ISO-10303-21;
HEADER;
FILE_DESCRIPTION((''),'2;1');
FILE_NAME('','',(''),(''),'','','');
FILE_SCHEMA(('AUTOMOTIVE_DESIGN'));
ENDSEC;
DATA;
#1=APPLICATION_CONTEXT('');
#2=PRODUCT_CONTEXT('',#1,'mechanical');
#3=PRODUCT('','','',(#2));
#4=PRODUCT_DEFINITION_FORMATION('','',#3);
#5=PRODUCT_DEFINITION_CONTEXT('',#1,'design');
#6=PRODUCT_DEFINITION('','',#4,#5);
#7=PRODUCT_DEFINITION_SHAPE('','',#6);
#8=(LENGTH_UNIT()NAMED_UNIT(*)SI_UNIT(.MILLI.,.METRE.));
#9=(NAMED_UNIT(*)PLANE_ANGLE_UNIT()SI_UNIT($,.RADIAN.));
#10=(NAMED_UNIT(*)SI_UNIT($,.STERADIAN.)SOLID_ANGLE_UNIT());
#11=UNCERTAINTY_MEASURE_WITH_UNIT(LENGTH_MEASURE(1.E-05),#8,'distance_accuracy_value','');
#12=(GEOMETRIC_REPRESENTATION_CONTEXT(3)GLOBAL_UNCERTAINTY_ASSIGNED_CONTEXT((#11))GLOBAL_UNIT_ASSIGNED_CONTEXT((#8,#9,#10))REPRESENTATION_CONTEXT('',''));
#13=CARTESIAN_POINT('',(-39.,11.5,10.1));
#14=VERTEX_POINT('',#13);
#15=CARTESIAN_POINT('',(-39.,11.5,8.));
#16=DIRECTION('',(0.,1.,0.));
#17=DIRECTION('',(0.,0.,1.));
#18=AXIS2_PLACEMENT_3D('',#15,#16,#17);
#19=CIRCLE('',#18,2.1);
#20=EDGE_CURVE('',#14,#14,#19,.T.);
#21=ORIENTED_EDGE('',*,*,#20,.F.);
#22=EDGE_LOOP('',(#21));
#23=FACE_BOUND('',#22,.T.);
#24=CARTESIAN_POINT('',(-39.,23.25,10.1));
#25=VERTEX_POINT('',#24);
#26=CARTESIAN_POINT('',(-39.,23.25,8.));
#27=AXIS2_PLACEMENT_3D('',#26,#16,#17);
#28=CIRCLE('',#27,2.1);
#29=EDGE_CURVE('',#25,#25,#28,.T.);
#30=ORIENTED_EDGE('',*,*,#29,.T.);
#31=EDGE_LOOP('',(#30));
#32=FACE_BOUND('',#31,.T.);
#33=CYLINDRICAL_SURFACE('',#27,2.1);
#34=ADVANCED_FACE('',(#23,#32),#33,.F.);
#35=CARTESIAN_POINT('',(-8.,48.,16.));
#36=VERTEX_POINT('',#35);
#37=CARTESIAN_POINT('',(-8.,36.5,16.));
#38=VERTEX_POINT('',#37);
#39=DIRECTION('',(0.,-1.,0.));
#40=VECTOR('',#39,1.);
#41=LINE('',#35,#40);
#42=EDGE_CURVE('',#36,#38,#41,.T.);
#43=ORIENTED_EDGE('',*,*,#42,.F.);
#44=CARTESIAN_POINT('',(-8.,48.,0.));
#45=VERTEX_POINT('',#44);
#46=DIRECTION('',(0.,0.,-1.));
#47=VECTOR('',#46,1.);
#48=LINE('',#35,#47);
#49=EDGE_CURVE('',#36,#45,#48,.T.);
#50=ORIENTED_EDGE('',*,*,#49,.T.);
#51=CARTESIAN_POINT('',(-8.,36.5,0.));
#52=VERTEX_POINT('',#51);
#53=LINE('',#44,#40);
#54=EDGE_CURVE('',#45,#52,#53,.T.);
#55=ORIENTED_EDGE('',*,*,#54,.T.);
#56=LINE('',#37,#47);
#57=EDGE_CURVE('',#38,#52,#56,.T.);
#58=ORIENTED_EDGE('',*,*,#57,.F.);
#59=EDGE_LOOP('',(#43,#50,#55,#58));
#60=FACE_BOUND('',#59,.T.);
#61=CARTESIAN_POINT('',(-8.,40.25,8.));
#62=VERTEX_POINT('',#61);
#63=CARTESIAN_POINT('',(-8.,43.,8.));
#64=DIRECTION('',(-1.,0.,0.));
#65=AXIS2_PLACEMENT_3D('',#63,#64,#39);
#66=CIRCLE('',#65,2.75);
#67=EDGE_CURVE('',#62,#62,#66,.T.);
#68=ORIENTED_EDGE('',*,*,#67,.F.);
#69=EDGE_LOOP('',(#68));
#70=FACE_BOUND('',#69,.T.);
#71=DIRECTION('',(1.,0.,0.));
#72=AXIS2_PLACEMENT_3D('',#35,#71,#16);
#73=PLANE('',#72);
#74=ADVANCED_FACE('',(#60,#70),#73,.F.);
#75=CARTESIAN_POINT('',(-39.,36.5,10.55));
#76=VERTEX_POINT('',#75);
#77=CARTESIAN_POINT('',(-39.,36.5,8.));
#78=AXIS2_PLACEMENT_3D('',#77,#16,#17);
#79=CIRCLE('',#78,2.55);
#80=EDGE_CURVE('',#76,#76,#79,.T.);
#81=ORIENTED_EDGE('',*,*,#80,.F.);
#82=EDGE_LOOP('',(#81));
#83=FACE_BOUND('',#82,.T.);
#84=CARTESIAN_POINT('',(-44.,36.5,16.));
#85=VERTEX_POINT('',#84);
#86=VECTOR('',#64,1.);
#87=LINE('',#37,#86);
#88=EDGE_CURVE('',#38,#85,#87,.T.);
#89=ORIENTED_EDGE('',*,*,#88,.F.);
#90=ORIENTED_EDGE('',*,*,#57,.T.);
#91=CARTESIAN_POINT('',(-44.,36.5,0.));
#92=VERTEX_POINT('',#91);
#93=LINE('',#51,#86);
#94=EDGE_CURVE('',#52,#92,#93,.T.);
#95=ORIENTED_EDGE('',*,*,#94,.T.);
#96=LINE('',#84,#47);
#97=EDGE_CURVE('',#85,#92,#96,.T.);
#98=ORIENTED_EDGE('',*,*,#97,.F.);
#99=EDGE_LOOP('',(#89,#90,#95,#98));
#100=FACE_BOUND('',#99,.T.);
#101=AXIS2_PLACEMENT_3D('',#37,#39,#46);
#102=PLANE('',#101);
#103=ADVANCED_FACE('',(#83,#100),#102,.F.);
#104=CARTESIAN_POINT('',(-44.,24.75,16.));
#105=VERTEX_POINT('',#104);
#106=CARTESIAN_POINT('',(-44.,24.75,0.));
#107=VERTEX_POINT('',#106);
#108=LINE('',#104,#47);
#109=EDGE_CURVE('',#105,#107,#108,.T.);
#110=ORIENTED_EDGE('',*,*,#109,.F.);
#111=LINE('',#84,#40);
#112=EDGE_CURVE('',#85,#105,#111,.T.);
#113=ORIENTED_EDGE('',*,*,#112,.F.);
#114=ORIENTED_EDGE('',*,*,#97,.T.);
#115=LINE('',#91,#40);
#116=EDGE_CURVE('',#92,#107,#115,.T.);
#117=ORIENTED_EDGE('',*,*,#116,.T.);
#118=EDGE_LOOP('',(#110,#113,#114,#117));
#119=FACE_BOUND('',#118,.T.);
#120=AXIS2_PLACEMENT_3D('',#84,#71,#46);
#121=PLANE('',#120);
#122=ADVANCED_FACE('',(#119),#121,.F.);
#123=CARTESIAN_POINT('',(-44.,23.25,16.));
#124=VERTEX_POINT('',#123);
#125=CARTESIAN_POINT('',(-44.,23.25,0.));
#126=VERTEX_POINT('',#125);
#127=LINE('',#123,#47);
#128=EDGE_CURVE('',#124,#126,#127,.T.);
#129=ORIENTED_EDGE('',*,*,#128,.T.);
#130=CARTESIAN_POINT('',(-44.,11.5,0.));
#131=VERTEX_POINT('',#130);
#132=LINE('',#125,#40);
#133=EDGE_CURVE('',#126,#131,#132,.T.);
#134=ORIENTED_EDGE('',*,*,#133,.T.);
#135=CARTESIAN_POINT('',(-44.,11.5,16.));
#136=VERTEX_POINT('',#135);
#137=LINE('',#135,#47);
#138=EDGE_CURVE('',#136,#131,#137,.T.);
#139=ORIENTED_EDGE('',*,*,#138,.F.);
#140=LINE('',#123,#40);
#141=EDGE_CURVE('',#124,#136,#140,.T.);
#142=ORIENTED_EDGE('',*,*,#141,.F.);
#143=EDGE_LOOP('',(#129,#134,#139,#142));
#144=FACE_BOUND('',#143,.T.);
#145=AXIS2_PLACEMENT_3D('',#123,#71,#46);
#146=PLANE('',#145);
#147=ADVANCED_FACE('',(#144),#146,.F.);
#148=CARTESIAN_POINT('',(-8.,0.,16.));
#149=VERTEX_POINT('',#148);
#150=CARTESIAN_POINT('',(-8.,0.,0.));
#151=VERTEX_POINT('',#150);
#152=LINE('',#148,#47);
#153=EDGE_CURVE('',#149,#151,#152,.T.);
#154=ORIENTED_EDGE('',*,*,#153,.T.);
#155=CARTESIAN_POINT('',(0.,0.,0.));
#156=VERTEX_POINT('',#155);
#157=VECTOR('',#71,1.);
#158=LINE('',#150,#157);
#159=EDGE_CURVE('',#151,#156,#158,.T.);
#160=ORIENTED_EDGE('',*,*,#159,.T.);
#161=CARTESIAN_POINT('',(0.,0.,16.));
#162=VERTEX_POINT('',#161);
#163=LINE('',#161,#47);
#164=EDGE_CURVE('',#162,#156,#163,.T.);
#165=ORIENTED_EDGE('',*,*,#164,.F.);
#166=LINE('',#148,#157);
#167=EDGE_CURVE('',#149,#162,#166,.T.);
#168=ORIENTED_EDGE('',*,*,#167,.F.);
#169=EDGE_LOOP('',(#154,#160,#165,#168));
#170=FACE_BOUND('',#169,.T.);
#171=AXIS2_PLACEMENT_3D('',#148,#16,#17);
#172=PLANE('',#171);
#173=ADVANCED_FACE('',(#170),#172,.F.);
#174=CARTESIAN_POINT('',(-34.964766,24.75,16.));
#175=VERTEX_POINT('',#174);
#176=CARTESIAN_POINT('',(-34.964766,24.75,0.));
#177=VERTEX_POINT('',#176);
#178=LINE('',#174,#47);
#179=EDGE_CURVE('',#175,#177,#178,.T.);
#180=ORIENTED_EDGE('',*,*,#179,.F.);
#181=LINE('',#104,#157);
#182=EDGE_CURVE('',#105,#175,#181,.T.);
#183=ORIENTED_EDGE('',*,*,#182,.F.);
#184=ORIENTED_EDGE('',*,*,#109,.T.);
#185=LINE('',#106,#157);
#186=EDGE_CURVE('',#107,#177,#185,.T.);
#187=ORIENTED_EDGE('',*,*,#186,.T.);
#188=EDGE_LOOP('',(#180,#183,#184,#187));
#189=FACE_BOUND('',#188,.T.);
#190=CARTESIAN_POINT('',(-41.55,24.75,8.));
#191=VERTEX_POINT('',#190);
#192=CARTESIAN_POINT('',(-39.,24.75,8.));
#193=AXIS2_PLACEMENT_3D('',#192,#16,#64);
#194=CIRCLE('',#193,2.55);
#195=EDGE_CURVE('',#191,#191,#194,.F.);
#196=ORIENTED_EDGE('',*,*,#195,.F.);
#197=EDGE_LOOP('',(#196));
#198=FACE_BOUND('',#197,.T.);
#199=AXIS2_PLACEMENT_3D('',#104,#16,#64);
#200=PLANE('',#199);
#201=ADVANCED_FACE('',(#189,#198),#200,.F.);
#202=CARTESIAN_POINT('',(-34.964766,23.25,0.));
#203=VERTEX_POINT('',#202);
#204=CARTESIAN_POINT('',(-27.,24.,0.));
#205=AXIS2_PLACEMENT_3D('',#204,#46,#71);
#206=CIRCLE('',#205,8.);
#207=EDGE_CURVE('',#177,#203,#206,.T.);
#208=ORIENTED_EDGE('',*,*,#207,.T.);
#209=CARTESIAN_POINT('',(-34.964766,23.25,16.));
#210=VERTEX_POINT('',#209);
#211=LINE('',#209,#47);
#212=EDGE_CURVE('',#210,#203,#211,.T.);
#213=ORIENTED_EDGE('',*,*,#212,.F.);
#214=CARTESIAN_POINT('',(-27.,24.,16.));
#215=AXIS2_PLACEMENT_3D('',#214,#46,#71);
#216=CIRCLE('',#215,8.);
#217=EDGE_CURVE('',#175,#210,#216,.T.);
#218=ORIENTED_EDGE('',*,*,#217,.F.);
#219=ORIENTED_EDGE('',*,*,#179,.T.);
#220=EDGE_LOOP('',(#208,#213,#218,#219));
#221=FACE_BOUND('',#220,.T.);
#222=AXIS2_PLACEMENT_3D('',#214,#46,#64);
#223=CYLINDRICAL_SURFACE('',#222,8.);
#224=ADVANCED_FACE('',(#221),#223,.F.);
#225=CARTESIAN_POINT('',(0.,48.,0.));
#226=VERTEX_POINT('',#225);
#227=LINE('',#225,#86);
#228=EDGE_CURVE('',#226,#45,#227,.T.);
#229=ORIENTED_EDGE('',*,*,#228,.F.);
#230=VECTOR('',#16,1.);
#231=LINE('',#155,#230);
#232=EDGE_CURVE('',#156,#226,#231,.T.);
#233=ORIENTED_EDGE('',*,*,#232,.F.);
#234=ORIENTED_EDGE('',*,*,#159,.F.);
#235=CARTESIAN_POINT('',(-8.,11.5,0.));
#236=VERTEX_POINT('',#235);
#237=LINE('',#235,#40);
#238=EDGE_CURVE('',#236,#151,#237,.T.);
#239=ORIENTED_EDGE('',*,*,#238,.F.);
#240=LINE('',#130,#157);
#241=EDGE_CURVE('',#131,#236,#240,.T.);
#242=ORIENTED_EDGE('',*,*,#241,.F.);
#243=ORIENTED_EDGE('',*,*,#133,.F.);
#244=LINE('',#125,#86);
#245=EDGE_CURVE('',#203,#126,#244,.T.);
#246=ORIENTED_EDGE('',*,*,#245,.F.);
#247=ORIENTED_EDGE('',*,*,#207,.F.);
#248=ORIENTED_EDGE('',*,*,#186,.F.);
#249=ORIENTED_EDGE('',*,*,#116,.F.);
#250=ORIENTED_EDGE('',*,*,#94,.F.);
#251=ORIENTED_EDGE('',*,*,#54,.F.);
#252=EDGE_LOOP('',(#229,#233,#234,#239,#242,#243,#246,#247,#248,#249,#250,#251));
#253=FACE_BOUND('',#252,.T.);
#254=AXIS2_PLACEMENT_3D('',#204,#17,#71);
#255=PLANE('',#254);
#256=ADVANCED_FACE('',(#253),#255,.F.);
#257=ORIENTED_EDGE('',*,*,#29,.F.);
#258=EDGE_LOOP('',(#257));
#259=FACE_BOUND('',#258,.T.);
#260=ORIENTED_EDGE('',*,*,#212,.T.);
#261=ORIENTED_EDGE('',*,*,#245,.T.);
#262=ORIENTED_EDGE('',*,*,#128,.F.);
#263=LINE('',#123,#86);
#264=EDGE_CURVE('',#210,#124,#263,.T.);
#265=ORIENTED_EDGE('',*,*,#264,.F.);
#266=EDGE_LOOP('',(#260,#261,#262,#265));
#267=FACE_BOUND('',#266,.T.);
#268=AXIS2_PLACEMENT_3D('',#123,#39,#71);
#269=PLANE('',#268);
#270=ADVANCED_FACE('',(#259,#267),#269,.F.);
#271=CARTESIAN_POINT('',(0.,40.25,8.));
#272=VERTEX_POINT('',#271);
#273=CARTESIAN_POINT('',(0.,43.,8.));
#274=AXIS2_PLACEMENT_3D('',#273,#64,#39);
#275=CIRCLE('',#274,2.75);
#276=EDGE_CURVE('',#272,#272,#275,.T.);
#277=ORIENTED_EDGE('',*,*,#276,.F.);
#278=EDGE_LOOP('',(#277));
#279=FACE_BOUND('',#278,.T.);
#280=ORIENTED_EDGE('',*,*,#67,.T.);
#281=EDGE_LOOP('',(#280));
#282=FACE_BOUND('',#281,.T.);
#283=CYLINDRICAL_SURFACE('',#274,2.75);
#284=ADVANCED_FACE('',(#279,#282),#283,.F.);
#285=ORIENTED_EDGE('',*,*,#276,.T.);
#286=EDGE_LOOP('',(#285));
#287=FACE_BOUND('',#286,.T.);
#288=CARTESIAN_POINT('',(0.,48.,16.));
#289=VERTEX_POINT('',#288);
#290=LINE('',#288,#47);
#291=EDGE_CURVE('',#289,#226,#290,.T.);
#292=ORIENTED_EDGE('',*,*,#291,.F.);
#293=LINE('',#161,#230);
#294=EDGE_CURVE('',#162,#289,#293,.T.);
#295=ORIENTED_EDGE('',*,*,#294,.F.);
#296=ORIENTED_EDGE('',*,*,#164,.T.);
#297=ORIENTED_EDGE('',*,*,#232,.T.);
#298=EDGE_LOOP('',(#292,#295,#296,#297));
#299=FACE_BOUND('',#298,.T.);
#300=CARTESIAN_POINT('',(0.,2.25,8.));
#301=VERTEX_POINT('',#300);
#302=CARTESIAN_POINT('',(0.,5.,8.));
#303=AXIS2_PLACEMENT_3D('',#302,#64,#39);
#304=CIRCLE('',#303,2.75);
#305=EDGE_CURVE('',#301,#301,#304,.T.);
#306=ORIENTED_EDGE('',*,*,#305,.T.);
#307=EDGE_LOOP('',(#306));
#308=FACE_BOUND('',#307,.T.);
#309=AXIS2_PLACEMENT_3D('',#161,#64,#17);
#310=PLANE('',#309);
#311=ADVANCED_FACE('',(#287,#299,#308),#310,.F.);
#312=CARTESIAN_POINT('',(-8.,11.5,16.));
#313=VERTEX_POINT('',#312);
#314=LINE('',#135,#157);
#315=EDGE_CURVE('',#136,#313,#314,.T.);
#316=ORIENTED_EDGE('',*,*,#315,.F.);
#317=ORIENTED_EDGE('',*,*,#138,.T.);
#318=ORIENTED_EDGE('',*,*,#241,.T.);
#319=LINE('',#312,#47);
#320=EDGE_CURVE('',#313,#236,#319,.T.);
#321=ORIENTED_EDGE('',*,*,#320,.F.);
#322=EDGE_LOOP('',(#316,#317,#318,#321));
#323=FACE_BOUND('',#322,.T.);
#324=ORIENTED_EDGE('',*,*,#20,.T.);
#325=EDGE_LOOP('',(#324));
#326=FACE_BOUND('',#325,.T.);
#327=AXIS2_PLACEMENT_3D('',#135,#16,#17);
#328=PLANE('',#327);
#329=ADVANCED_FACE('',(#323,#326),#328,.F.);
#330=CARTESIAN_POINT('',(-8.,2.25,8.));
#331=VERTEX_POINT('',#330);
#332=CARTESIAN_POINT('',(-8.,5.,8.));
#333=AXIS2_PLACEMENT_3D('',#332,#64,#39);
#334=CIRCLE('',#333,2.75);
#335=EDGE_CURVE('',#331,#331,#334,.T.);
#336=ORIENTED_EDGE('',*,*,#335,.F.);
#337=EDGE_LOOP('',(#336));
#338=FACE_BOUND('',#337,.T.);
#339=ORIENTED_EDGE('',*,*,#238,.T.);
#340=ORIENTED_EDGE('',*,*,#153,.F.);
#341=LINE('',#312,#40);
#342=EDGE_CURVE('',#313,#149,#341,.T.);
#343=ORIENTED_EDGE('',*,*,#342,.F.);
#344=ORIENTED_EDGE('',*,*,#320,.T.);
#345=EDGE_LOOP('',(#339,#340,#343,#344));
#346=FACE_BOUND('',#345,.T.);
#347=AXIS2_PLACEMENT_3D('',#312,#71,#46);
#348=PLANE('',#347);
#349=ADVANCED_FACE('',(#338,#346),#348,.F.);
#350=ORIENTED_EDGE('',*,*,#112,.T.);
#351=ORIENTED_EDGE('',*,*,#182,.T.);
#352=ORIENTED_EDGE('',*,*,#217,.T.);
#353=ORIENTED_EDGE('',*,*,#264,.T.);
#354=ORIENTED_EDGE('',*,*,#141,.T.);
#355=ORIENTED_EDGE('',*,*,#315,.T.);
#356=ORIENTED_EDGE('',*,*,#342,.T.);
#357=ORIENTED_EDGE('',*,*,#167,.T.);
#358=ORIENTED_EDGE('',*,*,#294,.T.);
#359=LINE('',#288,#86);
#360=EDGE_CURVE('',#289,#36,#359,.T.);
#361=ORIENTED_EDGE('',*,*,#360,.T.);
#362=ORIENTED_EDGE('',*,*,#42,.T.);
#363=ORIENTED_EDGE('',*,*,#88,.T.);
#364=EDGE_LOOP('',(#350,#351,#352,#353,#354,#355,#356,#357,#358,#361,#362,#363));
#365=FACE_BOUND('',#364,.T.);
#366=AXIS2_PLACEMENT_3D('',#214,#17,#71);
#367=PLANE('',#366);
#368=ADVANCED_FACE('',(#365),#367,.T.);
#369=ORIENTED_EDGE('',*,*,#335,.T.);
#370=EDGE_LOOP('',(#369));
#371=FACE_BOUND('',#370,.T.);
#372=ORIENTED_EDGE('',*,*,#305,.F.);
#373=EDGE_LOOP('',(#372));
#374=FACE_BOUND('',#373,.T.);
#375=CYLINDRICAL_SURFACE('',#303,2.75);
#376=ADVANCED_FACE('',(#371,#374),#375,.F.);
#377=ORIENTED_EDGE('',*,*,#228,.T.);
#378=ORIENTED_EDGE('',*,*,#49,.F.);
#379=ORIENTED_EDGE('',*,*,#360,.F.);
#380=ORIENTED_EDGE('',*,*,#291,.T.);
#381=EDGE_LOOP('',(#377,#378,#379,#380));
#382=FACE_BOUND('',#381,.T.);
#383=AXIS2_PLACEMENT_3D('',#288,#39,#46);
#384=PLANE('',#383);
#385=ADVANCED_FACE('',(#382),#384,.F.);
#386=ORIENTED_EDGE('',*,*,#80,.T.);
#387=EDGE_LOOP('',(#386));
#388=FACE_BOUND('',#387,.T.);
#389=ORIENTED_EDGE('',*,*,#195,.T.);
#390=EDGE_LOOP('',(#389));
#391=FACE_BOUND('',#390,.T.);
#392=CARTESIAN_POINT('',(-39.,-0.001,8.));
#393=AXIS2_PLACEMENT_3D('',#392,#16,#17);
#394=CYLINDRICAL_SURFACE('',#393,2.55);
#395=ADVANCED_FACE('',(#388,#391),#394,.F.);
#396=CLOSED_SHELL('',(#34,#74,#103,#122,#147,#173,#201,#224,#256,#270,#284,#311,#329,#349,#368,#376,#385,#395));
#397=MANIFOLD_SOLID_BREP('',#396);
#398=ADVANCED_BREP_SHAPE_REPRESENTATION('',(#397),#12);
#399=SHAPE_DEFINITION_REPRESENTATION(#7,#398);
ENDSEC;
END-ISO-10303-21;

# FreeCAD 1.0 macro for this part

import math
import FreeCAD as App
import Part
import Sketcher
from FreeCAD import Vector
Q = App.Units.Quantity

doc = App.newDocument("Part")
body = doc.addObject("PartDesign::Body", "Body")

# Sketch on XY plane
sketch1 = body.newObject("Sketcher::SketchObject", "Sketch")
sketch1.AttachmentSupport = (doc.getObject("XY_Plane"), [""])
sketch1.MapMode = "FlatFace"
sketch1.addGeometry([
    Part.LineSegment(Vector(0, 0, 0), Vector(0, 48, 0)),  # 0
    Part.LineSegment(Vector(0, 48, 0), Vector(-8, 48, 0)),  # 1
    Part.LineSegment(Vector(-8, 48, 0), Vector(-8, 36.5, 0)),  # 2
    Part.LineSegment(Vector(-8, 36.5, 0), Vector(-44, 36.5, 0)),  # 3
    Part.LineSegment(Vector(-44, 36.5, 0), Vector(-44, 24.8, 0)),  # 4
    Part.LineSegment(Vector(-44, 24.8, 0), Vector(-35, 24.8, 0)),  # 5
    Part.ArcOfCircle(Part.Circle(Vector(-27, 24, 0), Vector(0, 0, 1), 8), math.radians(-175), math.radians(175)),  # 6
    Part.LineSegment(Vector(-35, 23.2, 0), Vector(-44, 23.2, 0)),  # 7
    Part.LineSegment(Vector(-44, 23.2, 0), Vector(-44, 11.5, 0)),  # 8
    Part.LineSegment(Vector(-44, 11.5, 0), Vector(-8, 11.5, 0)),  # 9
    Part.LineSegment(Vector(-8, 11.5, 0), Vector(-8, 0, 0)),  # 10
    Part.LineSegment(Vector(-8, 0, 0), Vector(0, 0, 0)),  # 11
], False)
sketch1.addConstraint([
    Sketcher.Constraint("Coincident", 0, 2, 1, 1),
    Sketcher.Constraint("Coincident", 1, 2, 2, 1),
    Sketcher.Constraint("Coincident", 2, 2, 3, 1),
    Sketcher.Constraint("Coincident", 3, 2, 4, 1),
    Sketcher.Constraint("Coincident", 4, 2, 5, 1),
    Sketcher.Constraint("Coincident", 5, 2, 6, 2),
    Sketcher.Constraint("Coincident", 6, 1, 7, 1),
    Sketcher.Constraint("Coincident", 7, 2, 8, 1),
    Sketcher.Constraint("Coincident", 8, 2, 9, 1),
    Sketcher.Constraint("Coincident", 9, 2, 10, 1),
    Sketcher.Constraint("Coincident", 10, 2, 11, 1),
    Sketcher.Constraint("Coincident", 11, 2, 0, 1),
    Sketcher.Constraint("Vertical", 0),
    Sketcher.Constraint("Horizontal", 1),
    Sketcher.Constraint("Vertical", 2),
    Sketcher.Constraint("Horizontal", 3),
    Sketcher.Constraint("Vertical", 4),
    Sketcher.Constraint("Horizontal", 5),
    Sketcher.Constraint("Horizontal", 7),
    Sketcher.Constraint("Vertical", 8),
    Sketcher.Constraint("Horizontal", 9),
    Sketcher.Constraint("Vertical", 10),
    Sketcher.Constraint("Horizontal", 11),
    Sketcher.Constraint("Coincident", 11, 2, -1, 1),
    Sketcher.Constraint("Vertical", 5, 2, 6, 1),
    Sketcher.Constraint("Vertical", 4, 2, 7, 2),
    Sketcher.Constraint("Vertical", 2, 2, 9, 2),
    Sketcher.Constraint("Equal", 4, 8),
    Sketcher.Constraint("Equal", 2, 10),
    Sketcher.Constraint("Radius", 6, Q("8 mm")),
    Sketcher.Constraint("DistanceX", 1, 2, 1, 1, Q("8 mm")),
    Sketcher.Constraint("DistanceX", 3, 2, 3, 1, Q("36 mm")),
    Sketcher.Constraint("DistanceY", 0, 1, 0, 2, Q("48 mm")),
    Sketcher.Constraint("DistanceY", 2, 2, 2, 1, Q("11.5 mm")),
    Sketcher.Constraint("DistanceX", 6, 3, -1, 1, Q("27 mm")),
    Sketcher.Constraint("DistanceY", 4, 2, 4, 1, Q("11.75 mm")),
])
pad1 = body.newObject("PartDesign::Pad", "Pad")
pad1.Profile = sketch1
pad1.Length = 16

# Sketch on XZ plane
sketch2 = body.newObject("Sketcher::SketchObject", "Sketch001")
sketch2.AttachmentSupport = (doc.getObject("XZ_Plane"), [""])
sketch2.MapMode = "FlatFace"
sketch2.AttachmentOffset = App.Placement(Vector(0, 0, -36.5), App.Rotation())
sketch2.addGeometry(Part.Circle(Vector(-39, 8, 0), Vector(0, 0, 1), 2.5), False)
sketch2.addConstraint([
    Sketcher.Constraint("Diameter", 0, Q("5.1 mm")),
    Sketcher.Constraint("DistanceX", 0, 3, -1, 1, Q("39 mm")),
    Sketcher.Constraint("DistanceY", -1, 1, 0, 3, Q("8 mm")),
])
pocket1 = body.newObject("PartDesign::Pocket", "Pocket")
pocket1.Profile = sketch2
pocket1.Type = "UpToFirst"
pocket1.Reversed = True

# Sketch on XZ plane
sketch3 = body.newObject("Sketcher::SketchObject", "Sketch002")
sketch3.AttachmentSupport = (doc.getObject("XZ_Plane"), [""])
sketch3.MapMode = "FlatFace"
sketch3.AttachmentOffset = App.Placement(Vector(0, 0, -23.25), App.Rotation())
sketch3.addGeometry(Part.Circle(Vector(-39, 8, 0), Vector(0, 0, 1), 2.1), False)
sketch3.addConstraint([
    Sketcher.Constraint("Diameter", 0, Q("4.2 mm")),
    Sketcher.Constraint("DistanceX", 0, 3, -1, 1, Q("39 mm")),
    Sketcher.Constraint("DistanceY", -1, 1, 0, 3, Q("8 mm")),
])
doc.recompute()
hole = body.newObject("PartDesign::Hole", "Hole")
hole.Profile = sketch3
hole.ThreadType = "None"
hole.Diameter = 4.2
hole.DepthType = "Dimension"
hole.Depth = 14
hole.DrillPoint = "Angled"
hole.DrillPointAngle = 118
hole.Reversed = True

# Sketch on YZ plane
sketch4 = body.newObject("Sketcher::SketchObject", "Sketch003")
sketch4.AttachmentSupport = (doc.getObject("YZ_Plane"), [""])
sketch4.MapMode = "FlatFace"
sketch4.AttachmentOffset = App.Placement(Vector(0, 0, -8), App.Rotation())
sketch4.addGeometry([
    Part.Circle(Vector(43, 8, 0), Vector(0, 0, 1), 2.8),
    Part.Circle(Vector(5, 8, 0), Vector(0, 0, 1), 2.8),
], False)
sketch4.addConstraint([
    Sketcher.Constraint("Equal", 0, 1),
    Sketcher.Constraint("Horizontal", 0, 3, 1, 3),
    Sketcher.Constraint("Diameter", 0, Q("5.5 mm")),
    Sketcher.Constraint("DistanceX", -1, 1, 0, 3, Q("43 mm")),
    Sketcher.Constraint("DistanceY", -1, 1, 0, 3, Q("8 mm")),
    Sketcher.Constraint("DistanceX", -1, 1, 1, 3, Q("5 mm")),
])
pocket2 = body.newObject("PartDesign::Pocket", "Pocket001")
pocket2.Profile = sketch4
pocket2.Type = "ThroughAll"
pocket2.Reversed = True

doc.recompute()
